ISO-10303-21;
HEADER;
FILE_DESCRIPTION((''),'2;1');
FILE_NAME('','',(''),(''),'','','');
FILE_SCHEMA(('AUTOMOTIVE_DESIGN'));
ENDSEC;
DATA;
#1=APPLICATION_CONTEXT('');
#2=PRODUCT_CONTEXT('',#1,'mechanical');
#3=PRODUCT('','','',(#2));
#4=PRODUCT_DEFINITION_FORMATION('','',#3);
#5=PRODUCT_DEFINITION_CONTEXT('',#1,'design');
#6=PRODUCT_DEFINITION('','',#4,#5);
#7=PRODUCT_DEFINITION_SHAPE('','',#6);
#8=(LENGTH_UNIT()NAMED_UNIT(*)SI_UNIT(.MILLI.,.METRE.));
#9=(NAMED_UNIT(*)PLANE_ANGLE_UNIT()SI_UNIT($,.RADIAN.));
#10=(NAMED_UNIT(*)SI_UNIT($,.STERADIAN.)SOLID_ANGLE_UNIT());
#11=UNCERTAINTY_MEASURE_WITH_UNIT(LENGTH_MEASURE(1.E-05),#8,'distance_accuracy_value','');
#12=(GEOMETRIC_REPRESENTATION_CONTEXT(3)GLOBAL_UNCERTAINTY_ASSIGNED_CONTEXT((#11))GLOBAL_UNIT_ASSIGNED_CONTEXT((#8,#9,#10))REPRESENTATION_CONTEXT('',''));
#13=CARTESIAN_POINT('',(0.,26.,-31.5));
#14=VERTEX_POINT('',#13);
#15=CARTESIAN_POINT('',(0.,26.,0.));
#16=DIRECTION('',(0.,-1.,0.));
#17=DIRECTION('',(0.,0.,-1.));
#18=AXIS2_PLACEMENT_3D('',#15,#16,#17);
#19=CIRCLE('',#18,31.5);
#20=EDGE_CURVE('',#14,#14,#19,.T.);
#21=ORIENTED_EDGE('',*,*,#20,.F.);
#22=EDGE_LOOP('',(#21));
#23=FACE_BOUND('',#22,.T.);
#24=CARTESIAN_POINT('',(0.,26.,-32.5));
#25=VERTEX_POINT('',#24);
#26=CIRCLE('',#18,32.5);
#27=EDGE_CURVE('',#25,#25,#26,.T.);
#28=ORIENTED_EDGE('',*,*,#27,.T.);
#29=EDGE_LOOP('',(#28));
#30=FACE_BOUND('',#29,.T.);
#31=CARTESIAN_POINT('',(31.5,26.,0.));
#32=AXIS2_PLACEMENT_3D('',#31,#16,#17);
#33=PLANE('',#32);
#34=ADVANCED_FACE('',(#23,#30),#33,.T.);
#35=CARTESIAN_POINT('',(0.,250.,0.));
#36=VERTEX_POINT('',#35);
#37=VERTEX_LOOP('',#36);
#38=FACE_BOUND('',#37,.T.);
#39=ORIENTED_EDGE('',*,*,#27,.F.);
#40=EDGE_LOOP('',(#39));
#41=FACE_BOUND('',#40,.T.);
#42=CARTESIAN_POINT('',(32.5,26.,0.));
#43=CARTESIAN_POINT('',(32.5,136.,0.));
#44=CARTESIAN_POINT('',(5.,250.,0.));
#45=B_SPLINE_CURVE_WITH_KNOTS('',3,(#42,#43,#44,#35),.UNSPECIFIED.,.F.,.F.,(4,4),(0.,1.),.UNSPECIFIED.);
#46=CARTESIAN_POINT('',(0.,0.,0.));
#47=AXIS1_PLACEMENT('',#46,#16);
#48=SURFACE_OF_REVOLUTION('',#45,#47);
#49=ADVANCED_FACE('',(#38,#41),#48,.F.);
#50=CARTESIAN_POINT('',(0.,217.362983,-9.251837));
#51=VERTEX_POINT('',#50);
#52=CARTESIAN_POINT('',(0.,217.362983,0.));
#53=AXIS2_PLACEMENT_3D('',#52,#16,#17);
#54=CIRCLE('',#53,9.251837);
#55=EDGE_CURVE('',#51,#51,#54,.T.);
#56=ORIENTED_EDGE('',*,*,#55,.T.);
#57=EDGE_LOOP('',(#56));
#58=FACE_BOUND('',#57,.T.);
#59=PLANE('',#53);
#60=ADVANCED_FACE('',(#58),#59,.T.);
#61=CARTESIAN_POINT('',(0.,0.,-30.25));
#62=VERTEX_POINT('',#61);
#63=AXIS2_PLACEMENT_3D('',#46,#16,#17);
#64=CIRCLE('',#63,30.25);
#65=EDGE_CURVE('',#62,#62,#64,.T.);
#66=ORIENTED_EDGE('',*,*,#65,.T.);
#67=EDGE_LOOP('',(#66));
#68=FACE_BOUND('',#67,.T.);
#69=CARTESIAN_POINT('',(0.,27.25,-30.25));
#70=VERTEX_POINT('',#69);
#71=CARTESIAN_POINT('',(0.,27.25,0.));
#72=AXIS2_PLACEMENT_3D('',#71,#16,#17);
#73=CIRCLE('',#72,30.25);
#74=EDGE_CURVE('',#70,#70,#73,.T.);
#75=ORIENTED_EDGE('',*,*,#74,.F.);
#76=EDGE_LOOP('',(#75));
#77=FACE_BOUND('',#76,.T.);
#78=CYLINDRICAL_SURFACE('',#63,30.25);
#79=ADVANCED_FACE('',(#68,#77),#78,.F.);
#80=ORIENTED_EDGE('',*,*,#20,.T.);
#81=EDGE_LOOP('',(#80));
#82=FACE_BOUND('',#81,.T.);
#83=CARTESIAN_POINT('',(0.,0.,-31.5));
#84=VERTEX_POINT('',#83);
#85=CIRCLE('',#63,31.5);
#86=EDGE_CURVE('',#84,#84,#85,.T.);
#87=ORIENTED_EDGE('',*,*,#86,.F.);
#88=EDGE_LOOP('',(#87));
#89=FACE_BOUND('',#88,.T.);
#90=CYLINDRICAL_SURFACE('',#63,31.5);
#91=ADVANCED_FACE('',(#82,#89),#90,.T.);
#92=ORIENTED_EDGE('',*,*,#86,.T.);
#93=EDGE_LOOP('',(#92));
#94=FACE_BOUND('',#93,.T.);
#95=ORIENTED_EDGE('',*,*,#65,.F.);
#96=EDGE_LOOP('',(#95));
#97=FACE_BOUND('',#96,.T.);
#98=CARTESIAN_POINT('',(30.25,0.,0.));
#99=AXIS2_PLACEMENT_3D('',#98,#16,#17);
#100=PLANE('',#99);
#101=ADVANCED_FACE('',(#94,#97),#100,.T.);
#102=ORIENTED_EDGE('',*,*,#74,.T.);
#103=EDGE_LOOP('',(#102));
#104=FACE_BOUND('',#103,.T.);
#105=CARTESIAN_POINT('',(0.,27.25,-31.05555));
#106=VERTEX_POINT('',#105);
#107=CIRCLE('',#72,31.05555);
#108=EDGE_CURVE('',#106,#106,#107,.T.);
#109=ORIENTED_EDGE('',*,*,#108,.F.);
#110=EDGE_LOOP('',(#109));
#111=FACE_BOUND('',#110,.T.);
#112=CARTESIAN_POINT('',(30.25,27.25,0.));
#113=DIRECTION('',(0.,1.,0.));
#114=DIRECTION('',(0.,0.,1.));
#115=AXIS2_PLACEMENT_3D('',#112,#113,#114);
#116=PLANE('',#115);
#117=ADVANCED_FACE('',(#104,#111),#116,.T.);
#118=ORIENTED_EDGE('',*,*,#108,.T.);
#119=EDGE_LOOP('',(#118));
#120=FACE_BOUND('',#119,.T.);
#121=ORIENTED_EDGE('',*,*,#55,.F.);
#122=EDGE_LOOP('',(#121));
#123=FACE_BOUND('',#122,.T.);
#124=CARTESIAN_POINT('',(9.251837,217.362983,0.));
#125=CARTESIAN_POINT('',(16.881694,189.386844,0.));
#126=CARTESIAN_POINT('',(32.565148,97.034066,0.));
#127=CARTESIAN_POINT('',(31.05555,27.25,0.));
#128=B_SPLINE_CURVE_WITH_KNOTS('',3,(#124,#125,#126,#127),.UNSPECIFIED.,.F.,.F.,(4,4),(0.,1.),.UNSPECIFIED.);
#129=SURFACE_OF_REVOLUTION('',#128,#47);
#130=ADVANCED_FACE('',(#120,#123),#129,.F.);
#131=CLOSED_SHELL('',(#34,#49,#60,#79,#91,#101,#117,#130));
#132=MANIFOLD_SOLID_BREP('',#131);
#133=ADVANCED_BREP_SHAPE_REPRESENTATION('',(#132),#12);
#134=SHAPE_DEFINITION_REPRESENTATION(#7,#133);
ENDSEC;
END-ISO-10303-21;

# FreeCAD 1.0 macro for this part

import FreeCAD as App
import Part
import Sketcher
Q = App.Units.Quantity

doc = App.newDocument("Part")
body = doc.addObject("PartDesign::Body", "Body")

# Sketch on XY plane
sketch1 = doc.addObject("Sketcher::SketchObject", "Sketch")
body.addObject(sketch1)
sketch1.AttachmentSupport = (doc.XY_Plane, [""])
sketch1.MapMode = "FlatFace"
sketch1.addGeometry(Part.LineSegment(App.Vector(31.5, 0, 0), App.Vector(31.5, 26, 0)), False)
sketch1.addGeometry(Part.LineSegment(App.Vector(31.5, 26, 0), App.Vector(32.5, 26, 0)), False)
sketch1.addGeometry(Part.BSplineCurve([App.Vector(32.5, 26, 0), App.Vector(32.5, 136, 0), App.Vector(5, 250, 0), App.Vector(0, 250, 0)], [4, 4], [0, 1], False, 3, [1, 1, 1, 1], False), False)
sketch1.addGeometry(Part.LineSegment(App.Vector(0, 250, 0), App.Vector(0, 217.362983, 0)), False)
sketch1.addGeometry(Part.LineSegment(App.Vector(0, 217.362983, 0), App.Vector(9.251837, 217.362983, 0)), False)
sketch1.addGeometry(Part.BSplineCurve([App.Vector(31.05555, 27.25, 0), App.Vector(32.565148, 97.034066, 0), App.Vector(16.881694, 189.386844, 0), App.Vector(9.251837, 217.362983, 0)], [4, 4], [0, 1], False, 3, [1, 1, 1, 1], False), False)
sketch1.addGeometry(Part.LineSegment(App.Vector(31.05555, 27.25, 0), App.Vector(30.25, 27.25, 0)), False)
sketch1.addGeometry(Part.LineSegment(App.Vector(30.25, 27.25, 0), App.Vector(30.25, 0, 0)), False)
sketch1.addGeometry(Part.LineSegment(App.Vector(30.25, 0, 0), App.Vector(31.5, 0, 0)), False)
sketch1.addConstraint(Sketcher.Constraint("Block", 2))
sketch1.addConstraint(Sketcher.Constraint("Block", 5))
sketch1.addConstraint(Sketcher.Constraint("Coincident", 0, 2, 1, 1))
sketch1.addConstraint(Sketcher.Constraint("Coincident", 1, 2, 2, 1))
sketch1.addConstraint(Sketcher.Constraint("Coincident", 2, 2, 3, 1))
sketch1.addConstraint(Sketcher.Constraint("Coincident", 3, 2, 4, 1))
sketch1.addConstraint(Sketcher.Constraint("Coincident", 4, 2, 5, 2))
sketch1.addConstraint(Sketcher.Constraint("Coincident", 5, 1, 6, 1))
sketch1.addConstraint(Sketcher.Constraint("Coincident", 6, 2, 7, 1))
sketch1.addConstraint(Sketcher.Constraint("Coincident", 7, 2, 8, 1))
sketch1.addConstraint(Sketcher.Constraint("Coincident", 8, 2, 0, 1))
sketch1.addConstraint(Sketcher.Constraint("Vertical", 0))
sketch1.addConstraint(Sketcher.Constraint("Horizontal", 1))
sketch1.addConstraint(Sketcher.Constraint("Vertical", 3))
sketch1.addConstraint(Sketcher.Constraint("Horizontal", 4))
sketch1.addConstraint(Sketcher.Constraint("Horizontal", 6))
sketch1.addConstraint(Sketcher.Constraint("Vertical", 7))
sketch1.addConstraint(Sketcher.Constraint("Horizontal", 8))
sketch1.addConstraint(Sketcher.Constraint("PointOnObject", 7, 2, -1))
sketch1.addConstraint(Sketcher.Constraint("DistanceX", 1, 1, 1, 2, Q("1 mm")))
sketch1.addConstraint(Sketcher.Constraint("DistanceX", 8, 1, 8, 2, Q("1.25 mm")))
revolution = doc.addObject("PartDesign::Revolution", "Revolution")
body.addObject(revolution)
revolution.Profile = sketch1
revolution.ReferenceAxis = (sketch1, ["V_Axis"])
revolution.Angle = 360

doc.recompute()
